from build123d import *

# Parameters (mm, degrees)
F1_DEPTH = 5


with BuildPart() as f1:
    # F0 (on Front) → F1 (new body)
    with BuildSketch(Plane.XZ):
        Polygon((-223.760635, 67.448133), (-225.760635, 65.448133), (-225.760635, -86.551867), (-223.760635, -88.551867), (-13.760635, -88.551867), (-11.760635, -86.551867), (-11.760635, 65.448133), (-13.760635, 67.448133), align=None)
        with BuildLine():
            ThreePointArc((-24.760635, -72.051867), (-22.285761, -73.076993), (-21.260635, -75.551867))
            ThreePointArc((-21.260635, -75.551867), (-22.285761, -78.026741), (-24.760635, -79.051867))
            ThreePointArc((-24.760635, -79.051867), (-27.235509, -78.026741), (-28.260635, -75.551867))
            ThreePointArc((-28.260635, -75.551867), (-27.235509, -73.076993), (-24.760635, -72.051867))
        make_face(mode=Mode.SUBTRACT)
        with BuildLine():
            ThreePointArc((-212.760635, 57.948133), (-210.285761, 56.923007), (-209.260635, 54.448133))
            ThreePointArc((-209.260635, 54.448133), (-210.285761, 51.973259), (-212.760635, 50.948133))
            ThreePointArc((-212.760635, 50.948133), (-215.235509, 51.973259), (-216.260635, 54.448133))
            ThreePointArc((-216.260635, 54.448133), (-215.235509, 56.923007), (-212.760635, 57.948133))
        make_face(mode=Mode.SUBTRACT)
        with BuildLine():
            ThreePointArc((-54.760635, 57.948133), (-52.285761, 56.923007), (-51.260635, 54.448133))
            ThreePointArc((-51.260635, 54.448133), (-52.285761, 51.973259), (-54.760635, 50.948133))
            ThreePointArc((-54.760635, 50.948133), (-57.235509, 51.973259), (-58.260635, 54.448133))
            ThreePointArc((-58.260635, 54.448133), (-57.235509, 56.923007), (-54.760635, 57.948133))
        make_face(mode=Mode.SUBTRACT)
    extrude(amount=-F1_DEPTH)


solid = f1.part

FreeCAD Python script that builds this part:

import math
import FreeCAD as App
import Part
import Sketcher

V = App.Vector
Q = App.Units.Quantity


def add_polygon(sketch, points):
    """Adds a closed chain of lines whose ends are joined by coincident constraints."""
    first, n = sketch.GeometryCount, len(points)
    for a, b in zip(points, points[1:] + points[:1]):
        sketch.addGeometry(Part.LineSegment(App.Vector(*a, 0), App.Vector(*b, 0)), False)
    for i in range(n):
        sketch.addConstraint(Sketcher.Constraint("Coincident", first + i, 2, first + (i + 1) % n, 1))

doc = App.newDocument("Part")
body = doc.addObject("PartDesign::Body", "Body")

# Sketch on XZ plane
sketch1 = body.newObject("Sketcher::SketchObject", "Sketch")
sketch1.AttachmentSupport = (doc.getObject("XZ_Plane"), [""])
sketch1.MapMode = "FlatFace"
add_polygon(sketch1, [(-223.8, 67.4), (-225.8, 65.4), (-225.8, -86.6), (-223.8, -88.6), (-13.8, -88.6), (-11.8, -86.6), (-11.8, 65.4), (-13.8, 67.4)])  # lines 0-7
sketch1.addGeometry(Part.ArcOfCircle(Part.Circle(V(-24.8, -75.6, 0), V(0, 0, 1), 3.5), math.radians(90), math.radians(180)), False)  # 8
sketch1.addGeometry(Part.ArcOfCircle(Part.Circle(V(-24.8, -75.6, 0), V(0, 0, 1), 3.5), math.radians(0), math.radians(90)), False)  # 9
sketch1.addGeometry(Part.ArcOfCircle(Part.Circle(V(-24.8, -75.6, 0), V(0, 0, 1), 3.5), math.radians(-90), math.radians(0)), False)  # 10
sketch1.addGeometry(Part.ArcOfCircle(Part.Circle(V(-24.8, -75.6, 0), V(0, 0, 1), 3.5), math.radians(180), math.radians(270)), False)  # 11
sketch1.addGeometry(Part.ArcOfCircle(Part.Circle(V(-212.8, 54.4, 0), V(0, 0, 1), 3.5), math.radians(90), math.radians(180)), False)  # 12
sketch1.addGeometry(Part.ArcOfCircle(Part.Circle(V(-212.8, 54.4, 0), V(0, 0, 1), 3.5), math.radians(0), math.radians(90)), False)  # 13
sketch1.addGeometry(Part.ArcOfCircle(Part.Circle(V(-212.8, 54.4, 0), V(0, 0, 1), 3.5), math.radians(-90), math.radians(0)), False)  # 14
sketch1.addGeometry(Part.ArcOfCircle(Part.Circle(V(-212.8, 54.4, 0), V(0, 0, 1), 3.5), math.radians(180), math.radians(270)), False)  # 15
sketch1.addGeometry(Part.ArcOfCircle(Part.Circle(V(-54.8, 54.4, 0), V(0, 0, 1), 3.5), math.radians(90), math.radians(180)), False)  # 16
sketch1.addGeometry(Part.ArcOfCircle(Part.Circle(V(-54.8, 54.4, 0), V(0, 0, 1), 3.5), math.radians(0), math.radians(90)), False)  # 17
sketch1.addGeometry(Part.ArcOfCircle(Part.Circle(V(-54.8, 54.4, 0), V(0, 0, 1), 3.5), math.radians(-90), math.radians(0)), False)  # 18
sketch1.addGeometry(Part.ArcOfCircle(Part.Circle(V(-54.8, 54.4, 0), V(0, 0, 1), 3.5), math.radians(180), math.radians(270)), False)  # 19
sketch1.addConstraint(Sketcher.Constraint("Tangent", 8, 1, 9, 2))
sketch1.addConstraint(Sketcher.Constraint("Tangent", 9, 1, 10, 2))
sketch1.addConstraint(Sketcher.Constraint("Tangent", 10, 1, 11, 2))
sketch1.addConstraint(Sketcher.Constraint("Tangent", 11, 1, 8, 2))
sketch1.addConstraint(Sketcher.Constraint("Tangent", 12, 1, 13, 2))
sketch1.addConstraint(Sketcher.Constraint("Tangent", 13, 1, 14, 2))
sketch1.addConstraint(Sketcher.Constraint("Tangent", 14, 1, 15, 2))
sketch1.addConstraint(Sketcher.Constraint("Tangent", 15, 1, 12, 2))
sketch1.addConstraint(Sketcher.Constraint("Tangent", 16, 1, 17, 2))
sketch1.addConstraint(Sketcher.Constraint("Tangent", 17, 1, 18, 2))
sketch1.addConstraint(Sketcher.Constraint("Tangent", 18, 1, 19, 2))
sketch1.addConstraint(Sketcher.Constraint("Tangent", 19, 1, 16, 2))
sketch1.addConstraint(Sketcher.Constraint("Vertical", 1))
sketch1.addConstraint(Sketcher.Constraint("Horizontal", 3))
sketch1.addConstraint(Sketcher.Constraint("Vertical", 5))
sketch1.addConstraint(Sketcher.Constraint("Horizontal", 7))
sketch1.addConstraint(Sketcher.Constraint("Equal", 8, 9))
sketch1.addConstraint(Sketcher.Constraint("Equal", 11, 12))
sketch1.addConstraint(Sketcher.Constraint("Equal", 12, 13))
sketch1.addConstraint(Sketcher.Constraint("Equal", 15, 16))
sketch1.addConstraint(Sketcher.Constraint("Equal", 16, 17))
sketch1.addConstraint(Sketcher.Constraint("Perpendicular", 0, 2))
sketch1.addConstraint(Sketcher.Constraint("Perpendicular", 2, 4))
sketch1.addConstraint(Sketcher.Constraint("Perpendicular", 4, 6))
sketch1.addConstraint(Sketcher.Constraint("Horizontal", 15, 3, 16, 3))
sketch1.addConstraint(Sketcher.Constraint("Horizontal", 1, 2, 4, 2))
sketch1.addConstraint(Sketcher.Constraint("Horizontal", 0, 2, 5, 2))
sketch1.addConstraint(Sketcher.Constraint("Horizontal", 11, 3, 9, 1))
sketch1.addConstraint(Sketcher.Constraint("Horizontal", 9, 1, 11, 1))
sketch1.addConstraint(Sketcher.Constraint("Horizontal", 19, 3, 13, 1))
sketch1.addConstraint(Sketcher.Constraint("Horizontal", 13, 1, 15, 1))
sketch1.addConstraint(Sketcher.Constraint("Horizontal", 15, 1, 17, 1))
sketch1.addConstraint(Sketcher.Constraint("Horizontal", 17, 1, 19, 1))
sketch1.addConstraint(Sketcher.Constraint("Vertical", 3, 2, 6, 2))
sketch1.addConstraint(Sketcher.Constraint("Vertical", 2, 2, 7, 2))
sketch1.addConstraint(Sketcher.Constraint("Vertical", 11, 3, 8, 1))
sketch1.addConstraint(Sketcher.Constraint("Vertical", 8, 1, 10, 1))
sketch1.addConstraint(Sketcher.Constraint("Vertical", 15, 3, 12, 1))
sketch1.addConstraint(Sketcher.Constraint("Vertical", 12, 1, 14, 1))
sketch1.addConstraint(Sketcher.Constraint("Vertical", 19, 3, 16, 1))
sketch1.addConstraint(Sketcher.Constraint("Vertical", 16, 1, 18, 1))
sketch1.addConstraint(Sketcher.Constraint("Radius", 8, Q("3.499999 mm")))
sketch1.addConstraint(Sketcher.Constraint("DistanceX", 3, 1, 3, 2, Q("210 mm")))
sketch1.addConstraint(Sketcher.Constraint("DistanceY", 1, 2, 1, 1, Q("152 mm")))
sketch1.addConstraint(Sketcher.Constraint("DistanceX", 12, 3, 8, 3, Q("188 mm")))
sketch1.addConstraint(Sketcher.Constraint("DistanceY", 8, 3, 12, 3, Q("130 mm")))
sketch1.addConstraint(Sketcher.Constraint("DistanceX", 16, 3, 8, 3, Q("30 mm")))
sketch1.addConstraint(Sketcher.Constraint("DistanceX", 0, 2, 12, 3, Q("12.999999 mm")))
sketch1.addConstraint(Sketcher.Constraint("DistanceY", 12, 3, 0, 2, Q("10.999999 mm")))
sketch1.addConstraint(Sketcher.Constraint("DistanceX", 1, 2, 2, 2, Q("2 mm")))
sketch1.addConstraint(Sketcher.Constraint("DistanceX", 8, 3, -1, 1, Q("24.760636 mm")))
sketch1.addConstraint(Sketcher.Constraint("DistanceY", 8, 3, -1, 1, Q("75.551866 mm")))
pad1 = body.newObject("PartDesign::Pad", "Pad")
pad1.Profile = sketch1
pad1.Length = 5
pad1.Reversed = True

doc.recompute()
